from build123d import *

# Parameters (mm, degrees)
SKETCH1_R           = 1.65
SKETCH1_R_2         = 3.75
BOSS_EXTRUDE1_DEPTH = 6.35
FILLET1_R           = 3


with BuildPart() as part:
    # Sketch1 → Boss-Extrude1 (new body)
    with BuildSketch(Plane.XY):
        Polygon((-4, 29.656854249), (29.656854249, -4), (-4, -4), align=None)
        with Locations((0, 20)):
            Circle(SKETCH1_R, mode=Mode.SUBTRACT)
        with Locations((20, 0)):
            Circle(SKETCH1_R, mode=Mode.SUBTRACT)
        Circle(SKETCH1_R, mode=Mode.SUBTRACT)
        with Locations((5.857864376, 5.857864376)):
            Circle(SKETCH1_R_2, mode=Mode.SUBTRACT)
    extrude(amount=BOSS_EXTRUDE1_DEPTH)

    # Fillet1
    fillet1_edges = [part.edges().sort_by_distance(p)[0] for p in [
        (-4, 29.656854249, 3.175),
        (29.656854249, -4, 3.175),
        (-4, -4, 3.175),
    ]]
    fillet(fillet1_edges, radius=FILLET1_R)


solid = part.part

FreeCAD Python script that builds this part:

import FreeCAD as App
import Part
import Sketcher

V = App.Vector


def edges_at(feature, points):
    """Names of the edges that pass closest to the given points."""
    edges = feature.Shape.Edges
    near = lambda p: min(range(len(edges)), key=lambda i: edges[i].distToShape(Part.Vertex(*p))[0])
    return sorted({f"Edge{near(p) + 1}" for p in points})


def add_polygon(sketch, points):
    """Adds a closed chain of lines whose ends are joined by coincident constraints."""
    first, n = sketch.GeometryCount, len(points)
    for a, b in zip(points, points[1:] + points[:1]):
        sketch.addGeometry(Part.LineSegment(App.Vector(*a, 0), App.Vector(*b, 0)), False)
    for i in range(n):
        sketch.addConstraint(Sketcher.Constraint("Coincident", first + i, 2, first + (i + 1) % n, 1))

doc = App.newDocument("Part")
body = doc.addObject("PartDesign::Body", "Body")

# Sketch on XY plane
sketch1 = doc.addObject("Sketcher::SketchObject", "Sketch")
body.addObject(sketch1)
sketch1.AttachmentSupport = (doc.XY_Plane, [""])
sketch1.MapMode = "FlatFace"
add_polygon(sketch1, [(29.7, -4), (-4, 29.7), (-4, -4)])  # lines 0-2
sketch1.addGeometry(Part.Circle(V(20, 0, 0), V(0, 0, 1), 1.6), False)  # 3
sketch1.addGeometry(Part.Circle(V(0, 0, 0), V(0, 0, 1), 1.6), False)  # 4
sketch1.addGeometry(Part.Circle(V(5.9, 5.9, 0), V(0, 0, 1), 3.8), False)  # 5
sketch1.addGeometry(Part.Circle(V(0, 20, 0), V(0, 0, 1), 1.6), False)  # 6
sketch1.addConstraint([
    Sketcher.Constraint("Vertical", 1),
    Sketcher.Constraint("Horizontal", 2),
    Sketcher.Constraint("Coincident", 4, 3, -1, 1),
    Sketcher.Constraint("Equal", 3, 4),
    Sketcher.Constraint("Equal", 4, 6),
    Sketcher.Constraint("PointOnObject", 3, 3, -1),
    Sketcher.Constraint("PointOnObject", 6, 3, -2),
    Sketcher.Constraint("Equal", 2, 1),
    Sketcher.Constraint("Diameter", 3, 3.3),
    Sketcher.Constraint("Diameter", 5, 7.5),
    Sketcher.Constraint("DistanceX", -1, 1, 3, 3, 20.0),
    Sketcher.Constraint("DistanceY", -1, 1, 6, 3, 20.0),
    Sketcher.Constraint("DistanceX", 0, 2, -1, 1, 4.0),
    Sketcher.Constraint("DistanceY", 1, 2, -1, 1, 4.0),
    Sketcher.Constraint("Distance", 0, 47.59798),
    Sketcher.Constraint("DistanceY", 5, 3, 0, 2, 23.79899),
    Sketcher.Constraint("DistanceX", 5, 3, 2, 2, 23.79899),
])
pad1 = doc.addObject("PartDesign::Pad", "Pad")
body.addObject(pad1)
pad1.Profile = sketch1
pad1.Length = 6.35
doc.recompute()

fillet = doc.addObject("PartDesign::Fillet", "Fillet")
body.addObject(fillet)
fillet.Base = (pad1, edges_at(pad1, [(-4, 29.657, 3.175), (29.657, -4, 3.175), (-4, -4, 3.175)]))
fillet.Radius = 3

doc.recompute()
